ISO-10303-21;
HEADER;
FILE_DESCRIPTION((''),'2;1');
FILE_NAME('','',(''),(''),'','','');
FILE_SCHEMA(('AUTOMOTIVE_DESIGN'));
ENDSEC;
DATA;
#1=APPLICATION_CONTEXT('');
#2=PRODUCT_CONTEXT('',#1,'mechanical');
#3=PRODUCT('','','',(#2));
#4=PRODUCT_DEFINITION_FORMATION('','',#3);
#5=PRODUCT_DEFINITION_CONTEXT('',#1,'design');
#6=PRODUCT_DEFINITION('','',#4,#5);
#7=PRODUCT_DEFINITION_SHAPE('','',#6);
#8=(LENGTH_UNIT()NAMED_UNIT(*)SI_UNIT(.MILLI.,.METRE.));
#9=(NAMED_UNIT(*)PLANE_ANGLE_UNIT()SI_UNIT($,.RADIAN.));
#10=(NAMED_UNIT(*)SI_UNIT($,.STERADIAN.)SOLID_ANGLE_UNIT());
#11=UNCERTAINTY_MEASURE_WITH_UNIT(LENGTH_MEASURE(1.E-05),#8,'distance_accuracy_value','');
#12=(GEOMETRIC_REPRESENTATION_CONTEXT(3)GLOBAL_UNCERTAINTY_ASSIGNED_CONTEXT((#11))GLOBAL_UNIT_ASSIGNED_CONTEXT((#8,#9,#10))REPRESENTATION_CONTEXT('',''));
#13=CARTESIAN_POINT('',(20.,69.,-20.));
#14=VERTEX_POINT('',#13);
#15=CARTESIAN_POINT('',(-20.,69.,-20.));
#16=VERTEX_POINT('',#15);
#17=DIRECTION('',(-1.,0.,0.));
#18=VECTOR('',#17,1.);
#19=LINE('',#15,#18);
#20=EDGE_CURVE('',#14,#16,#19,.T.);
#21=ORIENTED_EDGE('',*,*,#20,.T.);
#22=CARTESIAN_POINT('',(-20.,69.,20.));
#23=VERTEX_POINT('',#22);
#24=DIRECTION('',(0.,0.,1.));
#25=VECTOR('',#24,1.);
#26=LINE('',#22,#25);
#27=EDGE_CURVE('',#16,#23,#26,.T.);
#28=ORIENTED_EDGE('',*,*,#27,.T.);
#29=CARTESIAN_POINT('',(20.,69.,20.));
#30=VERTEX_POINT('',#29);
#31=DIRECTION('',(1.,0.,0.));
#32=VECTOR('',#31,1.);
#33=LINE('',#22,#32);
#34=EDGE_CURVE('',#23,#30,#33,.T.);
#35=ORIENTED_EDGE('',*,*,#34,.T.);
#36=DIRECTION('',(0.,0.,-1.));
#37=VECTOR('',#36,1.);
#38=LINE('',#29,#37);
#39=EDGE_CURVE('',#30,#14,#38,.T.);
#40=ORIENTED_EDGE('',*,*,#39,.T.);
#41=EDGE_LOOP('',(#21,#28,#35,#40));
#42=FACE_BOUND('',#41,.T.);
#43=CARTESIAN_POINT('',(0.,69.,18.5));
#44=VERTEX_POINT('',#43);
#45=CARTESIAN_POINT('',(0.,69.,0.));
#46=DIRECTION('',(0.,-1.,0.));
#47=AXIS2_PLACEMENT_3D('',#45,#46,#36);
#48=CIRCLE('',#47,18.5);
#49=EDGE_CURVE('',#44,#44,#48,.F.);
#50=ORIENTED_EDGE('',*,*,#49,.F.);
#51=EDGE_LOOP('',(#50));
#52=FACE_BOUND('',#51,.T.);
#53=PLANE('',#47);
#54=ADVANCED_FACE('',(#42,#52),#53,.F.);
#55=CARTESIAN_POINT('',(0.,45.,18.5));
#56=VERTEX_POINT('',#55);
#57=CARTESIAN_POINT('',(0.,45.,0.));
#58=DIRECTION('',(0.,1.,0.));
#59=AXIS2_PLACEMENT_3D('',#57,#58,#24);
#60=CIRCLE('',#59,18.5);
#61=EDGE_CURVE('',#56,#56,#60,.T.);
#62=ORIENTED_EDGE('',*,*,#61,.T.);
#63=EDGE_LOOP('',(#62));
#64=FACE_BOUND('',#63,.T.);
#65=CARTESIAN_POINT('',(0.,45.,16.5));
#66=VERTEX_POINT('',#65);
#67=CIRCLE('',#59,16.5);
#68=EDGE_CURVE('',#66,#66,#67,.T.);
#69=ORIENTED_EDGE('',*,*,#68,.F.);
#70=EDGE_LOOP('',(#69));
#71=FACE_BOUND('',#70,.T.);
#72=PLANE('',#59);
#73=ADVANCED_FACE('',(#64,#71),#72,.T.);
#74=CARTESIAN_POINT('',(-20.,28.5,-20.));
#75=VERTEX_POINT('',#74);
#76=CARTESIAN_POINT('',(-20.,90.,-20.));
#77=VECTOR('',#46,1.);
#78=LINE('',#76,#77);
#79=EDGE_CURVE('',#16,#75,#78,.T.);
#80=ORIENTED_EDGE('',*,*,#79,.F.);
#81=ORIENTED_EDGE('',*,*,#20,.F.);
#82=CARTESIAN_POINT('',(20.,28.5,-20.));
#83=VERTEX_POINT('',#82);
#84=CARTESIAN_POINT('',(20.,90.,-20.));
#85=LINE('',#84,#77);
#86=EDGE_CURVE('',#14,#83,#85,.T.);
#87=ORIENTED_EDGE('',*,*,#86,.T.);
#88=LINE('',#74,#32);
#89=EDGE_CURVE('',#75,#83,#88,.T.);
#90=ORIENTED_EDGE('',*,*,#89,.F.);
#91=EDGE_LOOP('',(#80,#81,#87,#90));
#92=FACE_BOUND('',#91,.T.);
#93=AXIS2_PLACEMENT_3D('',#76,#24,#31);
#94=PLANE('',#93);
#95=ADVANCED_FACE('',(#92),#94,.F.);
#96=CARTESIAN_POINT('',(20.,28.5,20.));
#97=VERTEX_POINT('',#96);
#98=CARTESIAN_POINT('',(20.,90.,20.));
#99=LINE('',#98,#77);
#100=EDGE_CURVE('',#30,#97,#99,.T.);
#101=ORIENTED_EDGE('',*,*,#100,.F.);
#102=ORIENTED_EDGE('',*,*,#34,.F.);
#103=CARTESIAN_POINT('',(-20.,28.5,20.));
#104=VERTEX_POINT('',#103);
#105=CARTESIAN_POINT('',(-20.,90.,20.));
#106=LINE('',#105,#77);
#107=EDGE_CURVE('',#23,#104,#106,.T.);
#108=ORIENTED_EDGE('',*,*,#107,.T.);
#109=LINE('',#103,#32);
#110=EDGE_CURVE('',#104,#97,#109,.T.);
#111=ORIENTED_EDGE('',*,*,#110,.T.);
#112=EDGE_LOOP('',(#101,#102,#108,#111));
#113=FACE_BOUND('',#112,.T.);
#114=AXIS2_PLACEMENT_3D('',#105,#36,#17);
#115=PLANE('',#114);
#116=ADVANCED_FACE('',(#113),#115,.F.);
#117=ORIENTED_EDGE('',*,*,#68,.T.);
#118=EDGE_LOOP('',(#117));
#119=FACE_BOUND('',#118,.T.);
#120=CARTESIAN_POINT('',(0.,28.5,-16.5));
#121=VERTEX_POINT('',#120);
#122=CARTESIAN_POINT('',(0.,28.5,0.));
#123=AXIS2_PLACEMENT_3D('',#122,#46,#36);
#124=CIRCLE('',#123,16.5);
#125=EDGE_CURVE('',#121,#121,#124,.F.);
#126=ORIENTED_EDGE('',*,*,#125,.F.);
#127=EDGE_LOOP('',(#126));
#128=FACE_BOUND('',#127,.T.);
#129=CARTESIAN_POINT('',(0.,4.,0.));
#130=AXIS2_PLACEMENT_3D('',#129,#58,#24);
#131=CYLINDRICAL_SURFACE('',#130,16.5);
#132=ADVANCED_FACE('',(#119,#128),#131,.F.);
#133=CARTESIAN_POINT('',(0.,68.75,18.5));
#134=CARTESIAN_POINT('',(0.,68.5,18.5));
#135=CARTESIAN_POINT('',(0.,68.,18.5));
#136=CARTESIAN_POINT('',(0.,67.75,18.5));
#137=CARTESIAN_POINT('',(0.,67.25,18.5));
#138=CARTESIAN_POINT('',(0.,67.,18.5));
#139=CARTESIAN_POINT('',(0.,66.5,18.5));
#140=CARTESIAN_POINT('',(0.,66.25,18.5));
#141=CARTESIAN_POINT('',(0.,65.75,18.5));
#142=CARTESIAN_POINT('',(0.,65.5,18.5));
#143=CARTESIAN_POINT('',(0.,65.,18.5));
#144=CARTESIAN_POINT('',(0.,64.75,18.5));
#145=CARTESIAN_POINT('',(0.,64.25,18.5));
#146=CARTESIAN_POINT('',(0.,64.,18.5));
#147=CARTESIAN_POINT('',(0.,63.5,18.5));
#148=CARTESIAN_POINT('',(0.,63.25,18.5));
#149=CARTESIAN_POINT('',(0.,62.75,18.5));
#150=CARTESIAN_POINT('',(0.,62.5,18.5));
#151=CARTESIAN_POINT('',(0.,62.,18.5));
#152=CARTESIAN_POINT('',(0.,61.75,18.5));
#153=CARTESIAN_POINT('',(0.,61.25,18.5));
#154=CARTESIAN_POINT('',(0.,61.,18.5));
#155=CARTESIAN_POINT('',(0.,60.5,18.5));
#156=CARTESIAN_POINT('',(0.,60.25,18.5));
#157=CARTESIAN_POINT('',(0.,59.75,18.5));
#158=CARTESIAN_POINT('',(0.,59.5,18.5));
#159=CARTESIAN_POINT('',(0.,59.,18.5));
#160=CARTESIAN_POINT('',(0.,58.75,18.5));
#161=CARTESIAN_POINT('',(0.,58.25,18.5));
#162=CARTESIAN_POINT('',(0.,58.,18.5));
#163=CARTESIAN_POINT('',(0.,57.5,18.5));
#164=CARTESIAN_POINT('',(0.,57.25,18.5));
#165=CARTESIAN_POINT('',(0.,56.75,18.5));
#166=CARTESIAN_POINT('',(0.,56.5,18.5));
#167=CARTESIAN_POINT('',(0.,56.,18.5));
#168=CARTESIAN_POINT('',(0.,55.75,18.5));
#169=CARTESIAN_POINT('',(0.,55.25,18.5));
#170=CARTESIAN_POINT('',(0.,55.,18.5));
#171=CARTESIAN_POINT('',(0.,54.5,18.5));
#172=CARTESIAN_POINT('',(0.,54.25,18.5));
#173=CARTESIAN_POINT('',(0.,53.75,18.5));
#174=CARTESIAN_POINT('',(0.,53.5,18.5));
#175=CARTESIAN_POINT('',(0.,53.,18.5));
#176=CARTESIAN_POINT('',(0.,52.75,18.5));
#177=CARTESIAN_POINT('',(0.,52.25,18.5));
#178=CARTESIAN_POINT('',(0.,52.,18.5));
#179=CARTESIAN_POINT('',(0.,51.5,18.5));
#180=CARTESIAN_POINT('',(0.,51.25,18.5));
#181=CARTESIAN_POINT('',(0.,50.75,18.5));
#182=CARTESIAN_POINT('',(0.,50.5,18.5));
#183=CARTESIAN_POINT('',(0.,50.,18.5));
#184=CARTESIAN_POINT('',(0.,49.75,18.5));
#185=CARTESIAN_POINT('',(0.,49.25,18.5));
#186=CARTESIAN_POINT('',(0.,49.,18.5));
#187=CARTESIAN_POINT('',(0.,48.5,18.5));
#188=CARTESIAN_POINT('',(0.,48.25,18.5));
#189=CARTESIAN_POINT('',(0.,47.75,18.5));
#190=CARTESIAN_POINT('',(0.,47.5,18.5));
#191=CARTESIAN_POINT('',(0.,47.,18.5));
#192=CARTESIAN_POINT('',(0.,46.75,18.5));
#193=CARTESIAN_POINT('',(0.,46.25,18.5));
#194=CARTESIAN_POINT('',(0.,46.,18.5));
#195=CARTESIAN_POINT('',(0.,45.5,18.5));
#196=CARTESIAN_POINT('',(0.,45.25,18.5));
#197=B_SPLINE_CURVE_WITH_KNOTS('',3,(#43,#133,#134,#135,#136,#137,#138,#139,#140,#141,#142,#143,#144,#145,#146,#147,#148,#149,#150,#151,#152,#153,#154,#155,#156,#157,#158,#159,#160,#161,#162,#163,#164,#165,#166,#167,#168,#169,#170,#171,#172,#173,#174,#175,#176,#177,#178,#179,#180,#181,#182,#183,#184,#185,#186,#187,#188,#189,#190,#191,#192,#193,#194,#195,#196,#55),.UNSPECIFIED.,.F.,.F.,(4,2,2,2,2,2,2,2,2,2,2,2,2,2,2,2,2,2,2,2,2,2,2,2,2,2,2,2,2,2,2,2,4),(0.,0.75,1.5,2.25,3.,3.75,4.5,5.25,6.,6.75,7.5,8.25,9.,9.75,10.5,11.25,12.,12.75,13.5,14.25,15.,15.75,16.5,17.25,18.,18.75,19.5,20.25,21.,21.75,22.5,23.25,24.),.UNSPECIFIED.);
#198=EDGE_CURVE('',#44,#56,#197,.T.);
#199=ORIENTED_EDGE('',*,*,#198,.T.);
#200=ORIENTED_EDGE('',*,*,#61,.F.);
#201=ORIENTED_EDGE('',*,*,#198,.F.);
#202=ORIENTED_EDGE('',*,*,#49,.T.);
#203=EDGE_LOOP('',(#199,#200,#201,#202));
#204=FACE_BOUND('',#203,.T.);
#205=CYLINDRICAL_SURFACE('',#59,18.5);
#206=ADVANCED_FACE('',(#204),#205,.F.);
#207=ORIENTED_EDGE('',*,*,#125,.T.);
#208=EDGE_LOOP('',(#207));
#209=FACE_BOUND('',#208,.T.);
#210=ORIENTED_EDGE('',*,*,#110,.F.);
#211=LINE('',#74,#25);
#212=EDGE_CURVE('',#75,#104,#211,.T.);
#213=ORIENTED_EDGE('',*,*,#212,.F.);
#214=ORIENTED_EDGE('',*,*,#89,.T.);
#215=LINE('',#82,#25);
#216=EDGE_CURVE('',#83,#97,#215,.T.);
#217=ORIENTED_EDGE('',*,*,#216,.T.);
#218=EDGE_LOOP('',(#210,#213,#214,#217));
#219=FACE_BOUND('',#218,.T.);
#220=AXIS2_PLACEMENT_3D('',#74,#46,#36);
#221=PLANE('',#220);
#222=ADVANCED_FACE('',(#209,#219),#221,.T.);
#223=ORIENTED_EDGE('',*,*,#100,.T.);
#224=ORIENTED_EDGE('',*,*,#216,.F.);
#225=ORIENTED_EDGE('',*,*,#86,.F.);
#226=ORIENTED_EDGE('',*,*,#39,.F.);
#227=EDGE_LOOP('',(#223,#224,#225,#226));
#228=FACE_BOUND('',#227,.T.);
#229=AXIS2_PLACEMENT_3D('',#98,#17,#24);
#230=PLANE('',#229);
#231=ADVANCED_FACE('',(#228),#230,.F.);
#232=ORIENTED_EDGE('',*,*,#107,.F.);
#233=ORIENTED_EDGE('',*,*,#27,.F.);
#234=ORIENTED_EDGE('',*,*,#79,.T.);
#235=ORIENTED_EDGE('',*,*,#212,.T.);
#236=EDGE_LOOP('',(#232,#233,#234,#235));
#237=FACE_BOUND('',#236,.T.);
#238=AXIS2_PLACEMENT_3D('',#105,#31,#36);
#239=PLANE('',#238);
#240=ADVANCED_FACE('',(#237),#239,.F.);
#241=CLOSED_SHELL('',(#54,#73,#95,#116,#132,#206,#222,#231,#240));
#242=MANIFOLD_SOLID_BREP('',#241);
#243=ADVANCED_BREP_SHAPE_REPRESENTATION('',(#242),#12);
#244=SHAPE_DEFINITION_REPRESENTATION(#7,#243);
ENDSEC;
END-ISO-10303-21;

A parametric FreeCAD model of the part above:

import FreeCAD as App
import Part
import Sketcher

V = App.Vector
Q = App.Units.Quantity

doc = App.newDocument("Part")
body = doc.addObject("PartDesign::Body", "Body")

# Sketch on XZ plane
sketch1 = body.newObject("Sketcher::SketchObject", "Sketch")
sketch1.AttachmentSupport = (doc.getObject("XZ_Plane"), [""])
sketch1.MapMode = "FlatFace"
sketch1.addGeometry([
    Part.LineSegment(V(-20, -20, 0), V(-20, 20, 0)),
    Part.LineSegment(V(-20, 20, 0), V(20, 20, 0)),
    Part.LineSegment(V(20, 20, 0), V(20, -20, 0)),
    Part.LineSegment(V(20, -20, 0), V(-20, -20, 0)),
], False)
sketch1.addConstraint([
    Sketcher.Constraint("Coincident", 0, 2, 1, 1),
    Sketcher.Constraint("Coincident", 1, 2, 2, 1),
    Sketcher.Constraint("Coincident", 2, 2, 3, 1),
    Sketcher.Constraint("Coincident", 3, 2, 0, 1),
    Sketcher.Constraint("Vertical", 0),
    Sketcher.Constraint("Horizontal", 1),
    Sketcher.Constraint("Vertical", 2),
    Sketcher.Constraint("Horizontal", 3),
    Sketcher.Constraint("Symmetric", 0, 2, 2, 2, -1, 1),
    Sketcher.Constraint("Equal", 3, 0),
    Sketcher.Constraint("DistanceX", 1, 1, 1, 2, Q("40 mm")),
])
pad1 = body.newObject("PartDesign::Pad", "Pad")
pad1.Profile = sketch1
pad1.Length = 90
pad1.Reversed = True

# Sketch on XZ plane
sketch2 = body.newObject("Sketcher::SketchObject", "Sketch001")
sketch2.AttachmentSupport = (doc.getObject("XZ_Plane"), [""])
sketch2.MapMode = "FlatFace"
sketch2.AttachmentOffset = App.Placement(V(0, 0, -90), App.Rotation())
sketch2.addGeometry(Part.Circle(V(0, 0, 0), V(0, 0, 1), 18), False)
sketch2.addConstraint([
    Sketcher.Constraint("Coincident", 0, 3, -1, 1),
    Sketcher.Constraint("Diameter", 0, Q("37 mm")),
])
pocket1 = body.newObject("PartDesign::Pocket", "Pocket")
pocket1.Profile = sketch2
pocket1.Length = 45
pocket1.Reversed = True

# Sketch on XZ plane
sketch3 = body.newObject("Sketcher::SketchObject", "Sketch002")
sketch3.AttachmentSupport = (doc.getObject("XZ_Plane"), [""])
sketch3.MapMode = "FlatFace"
sketch3.AttachmentOffset = App.Placement(V(0, 0, -45), App.Rotation())
sketch3.addGeometry(Part.Circle(V(0, 0, 0), V(0, 0, 1), 16), False)
sketch3.addConstraint([
    Sketcher.Constraint("Coincident", 0, 3, -1, 1),
    Sketcher.Constraint("Diameter", 0, Q("33 mm")),
])
pocket2 = body.newObject("PartDesign::Pocket", "Pocket001")
pocket2.Profile = sketch3
pocket2.Length = 41
pocket2.Reversed = True

# Sketch on XZ plane
sketch4 = body.newObject("Sketcher::SketchObject", "Sketch003")
sketch4.AttachmentSupport = (doc.getObject("XZ_Plane"), [""])
sketch4.MapMode = "FlatFace"
sketch4.AttachmentOffset = App.Placement(V(0, 0, -90), App.Rotation())
sketch4.addGeometry([
    Part.LineSegment(V(-20, -20, 0), V(-20, 20, 0)),
    Part.LineSegment(V(-20, 20, 0), V(20, 20, 0)),
    Part.LineSegment(V(20, 20, 0), V(20, -20, 0)),
    Part.LineSegment(V(20, -20, 0), V(-20, -20, 0)),
], False)
sketch4.addConstraint([
    Sketcher.Constraint("Coincident", 0, 2, 1, 1),
    Sketcher.Constraint("Coincident", 1, 2, 2, 1),
    Sketcher.Constraint("Coincident", 2, 2, 3, 1),
    Sketcher.Constraint("Coincident", 3, 2, 0, 1),
    Sketcher.Constraint("Vertical", 0),
    Sketcher.Constraint("Horizontal", 1),
    Sketcher.Constraint("Vertical", 2),
    Sketcher.Constraint("Horizontal", 3),
    Sketcher.Constraint("Symmetric", 0, 2, 2, 2, -1, 1),
    Sketcher.Constraint("Equal", 3, 0),
    Sketcher.Constraint("DistanceX", 1, 1, 1, 2, Q("40 mm")),
])
pocket3 = body.newObject("PartDesign::Pocket", "Pocket002")
pocket3.Profile = sketch4
pocket3.Length = 21
pocket3.Reversed = True

# Sketch on XY plane
sketch5 = body.newObject("Sketcher::SketchObject", "Sketch004")
sketch5.AttachmentSupport = (doc.getObject("XY_Plane"), [""])
sketch5.MapMode = "FlatFace"
sketch5.AttachmentOffset = App.Placement(V(0, 0, 20), App.Rotation())
sketch5.addGeometry([
    Part.LineSegment(V(-10, 22, 0), V(-10, 8, 0)),
    Part.LineSegment(V(-10, 8, 0), V(10, 8, 0)),
    Part.LineSegment(V(10, 8, 0), V(10, 22, 0)),
    Part.LineSegment(V(10, 22, 0), V(-10, 22, 0)),
], False)
sketch5.addConstraint([
    Sketcher.Constraint("Coincident", 0, 2, 1, 1),
    Sketcher.Constraint("Coincident", 1, 2, 2, 1),
    Sketcher.Constraint("Coincident", 2, 2, 3, 1),
    Sketcher.Constraint("Coincident", 3, 2, 0, 1),
    Sketcher.Constraint("Vertical", 0),
    Sketcher.Constraint("Horizontal", 1),
    Sketcher.Constraint("Vertical", 2),
    Sketcher.Constraint("Horizontal", 3),
    Sketcher.Constraint("DistanceX", 1, 1, 1, 2, Q("20 mm")),
    Sketcher.Constraint("DistanceY", 0, 2, 0, 1, Q("15 mm")),
    Sketcher.Constraint("DistanceX", 0, 2, -1, 1, Q("10 mm")),
    Sketcher.Constraint("DistanceY", -1, 1, 0, 2, Q("7.5 mm")),
])
pocket4 = body.newObject("PartDesign::Pocket", "Pocket003")
pocket4.Profile = sketch5
pocket4.Type = "ThroughAll"

# Sketch on YZ plane
sketch6 = body.newObject("Sketcher::SketchObject", "Sketch005")
sketch6.AttachmentSupport = (doc.getObject("YZ_Plane"), [""])
sketch6.MapMode = "FlatFace"
sketch6.AttachmentOffset = App.Placement(V(0, 0, -20), App.Rotation())
sketch6.addGeometry([
    Part.LineSegment(V(22, -10, 0), V(8, -10, 0)),
    Part.LineSegment(V(8, -10, 0), V(8, 10, 0)),
    Part.LineSegment(V(8, 10, 0), V(22, 10, 0)),
    Part.LineSegment(V(22, 10, 0), V(22, -10, 0)),
], False)
sketch6.addConstraint([
    Sketcher.Constraint("Coincident", 0, 2, 1, 1),
    Sketcher.Constraint("Coincident", 1, 2, 2, 1),
    Sketcher.Constraint("Coincident", 2, 2, 3, 1),
    Sketcher.Constraint("Coincident", 3, 2, 0, 1),
    Sketcher.Constraint("Horizontal", 0),
    Sketcher.Constraint("Vertical", 1),
    Sketcher.Constraint("Horizontal", 2),
    Sketcher.Constraint("Vertical", 3),
    Sketcher.Constraint("DistanceX", 0, 2, 0, 1, Q("15 mm")),
    Sketcher.Constraint("DistanceY", 1, 1, 1, 2, Q("20 mm")),
    Sketcher.Constraint("DistanceY", 0, 2, -1, 1, Q("10 mm")),
    Sketcher.Constraint("DistanceX", -1, 1, 0, 2, Q("7.5 mm")),
])
pocket5 = body.newObject("PartDesign::Pocket", "Pocket004")
pocket5.Profile = sketch6
pocket5.Type = "ThroughAll"
pocket5.Reversed = True

# Sketch on XY plane
sketch7 = body.newObject("Sketcher::SketchObject", "Sketch006")
sketch7.AttachmentSupport = (doc.getObject("XY_Plane"), [""])
sketch7.MapMode = "FlatFace"
sketch7.AttachmentOffset = App.Placement(V(0, 0, 20), App.Rotation())
sketch7.addGeometry([
    Part.LineSegment(V(-20, 28, 0), V(-20, 0, 0)),
    Part.LineSegment(V(-20, 0, 0), V(20, 0, 0)),
    Part.LineSegment(V(20, 0, 0), V(20, 28, 0)),
    Part.LineSegment(V(20, 28, 0), V(-20, 28, 0)),
], False)
sketch7.addConstraint([
    Sketcher.Constraint("Coincident", 0, 2, 1, 1),
    Sketcher.Constraint("Coincident", 1, 2, 2, 1),
    Sketcher.Constraint("Coincident", 2, 2, 3, 1),
    Sketcher.Constraint("Coincident", 3, 2, 0, 1),
    Sketcher.Constraint("Vertical", 0),
    Sketcher.Constraint("Horizontal", 1),
    Sketcher.Constraint("Vertical", 2),
    Sketcher.Constraint("Horizontal", 3),
    Sketcher.Constraint("Symmetric", 0, 2, 1, 2, -1, 1),
    Sketcher.Constraint("DistanceX", 1, 1, 1, 2, Q("40 mm")),
    Sketcher.Constraint("DistanceY", 0, 2, 0, 1, Q("28.5 mm")),
])
pocket6 = body.newObject("PartDesign::Pocket", "Pocket005")
pocket6.Profile = sketch7
pocket6.Type = "ThroughAll"

doc.recompute()
